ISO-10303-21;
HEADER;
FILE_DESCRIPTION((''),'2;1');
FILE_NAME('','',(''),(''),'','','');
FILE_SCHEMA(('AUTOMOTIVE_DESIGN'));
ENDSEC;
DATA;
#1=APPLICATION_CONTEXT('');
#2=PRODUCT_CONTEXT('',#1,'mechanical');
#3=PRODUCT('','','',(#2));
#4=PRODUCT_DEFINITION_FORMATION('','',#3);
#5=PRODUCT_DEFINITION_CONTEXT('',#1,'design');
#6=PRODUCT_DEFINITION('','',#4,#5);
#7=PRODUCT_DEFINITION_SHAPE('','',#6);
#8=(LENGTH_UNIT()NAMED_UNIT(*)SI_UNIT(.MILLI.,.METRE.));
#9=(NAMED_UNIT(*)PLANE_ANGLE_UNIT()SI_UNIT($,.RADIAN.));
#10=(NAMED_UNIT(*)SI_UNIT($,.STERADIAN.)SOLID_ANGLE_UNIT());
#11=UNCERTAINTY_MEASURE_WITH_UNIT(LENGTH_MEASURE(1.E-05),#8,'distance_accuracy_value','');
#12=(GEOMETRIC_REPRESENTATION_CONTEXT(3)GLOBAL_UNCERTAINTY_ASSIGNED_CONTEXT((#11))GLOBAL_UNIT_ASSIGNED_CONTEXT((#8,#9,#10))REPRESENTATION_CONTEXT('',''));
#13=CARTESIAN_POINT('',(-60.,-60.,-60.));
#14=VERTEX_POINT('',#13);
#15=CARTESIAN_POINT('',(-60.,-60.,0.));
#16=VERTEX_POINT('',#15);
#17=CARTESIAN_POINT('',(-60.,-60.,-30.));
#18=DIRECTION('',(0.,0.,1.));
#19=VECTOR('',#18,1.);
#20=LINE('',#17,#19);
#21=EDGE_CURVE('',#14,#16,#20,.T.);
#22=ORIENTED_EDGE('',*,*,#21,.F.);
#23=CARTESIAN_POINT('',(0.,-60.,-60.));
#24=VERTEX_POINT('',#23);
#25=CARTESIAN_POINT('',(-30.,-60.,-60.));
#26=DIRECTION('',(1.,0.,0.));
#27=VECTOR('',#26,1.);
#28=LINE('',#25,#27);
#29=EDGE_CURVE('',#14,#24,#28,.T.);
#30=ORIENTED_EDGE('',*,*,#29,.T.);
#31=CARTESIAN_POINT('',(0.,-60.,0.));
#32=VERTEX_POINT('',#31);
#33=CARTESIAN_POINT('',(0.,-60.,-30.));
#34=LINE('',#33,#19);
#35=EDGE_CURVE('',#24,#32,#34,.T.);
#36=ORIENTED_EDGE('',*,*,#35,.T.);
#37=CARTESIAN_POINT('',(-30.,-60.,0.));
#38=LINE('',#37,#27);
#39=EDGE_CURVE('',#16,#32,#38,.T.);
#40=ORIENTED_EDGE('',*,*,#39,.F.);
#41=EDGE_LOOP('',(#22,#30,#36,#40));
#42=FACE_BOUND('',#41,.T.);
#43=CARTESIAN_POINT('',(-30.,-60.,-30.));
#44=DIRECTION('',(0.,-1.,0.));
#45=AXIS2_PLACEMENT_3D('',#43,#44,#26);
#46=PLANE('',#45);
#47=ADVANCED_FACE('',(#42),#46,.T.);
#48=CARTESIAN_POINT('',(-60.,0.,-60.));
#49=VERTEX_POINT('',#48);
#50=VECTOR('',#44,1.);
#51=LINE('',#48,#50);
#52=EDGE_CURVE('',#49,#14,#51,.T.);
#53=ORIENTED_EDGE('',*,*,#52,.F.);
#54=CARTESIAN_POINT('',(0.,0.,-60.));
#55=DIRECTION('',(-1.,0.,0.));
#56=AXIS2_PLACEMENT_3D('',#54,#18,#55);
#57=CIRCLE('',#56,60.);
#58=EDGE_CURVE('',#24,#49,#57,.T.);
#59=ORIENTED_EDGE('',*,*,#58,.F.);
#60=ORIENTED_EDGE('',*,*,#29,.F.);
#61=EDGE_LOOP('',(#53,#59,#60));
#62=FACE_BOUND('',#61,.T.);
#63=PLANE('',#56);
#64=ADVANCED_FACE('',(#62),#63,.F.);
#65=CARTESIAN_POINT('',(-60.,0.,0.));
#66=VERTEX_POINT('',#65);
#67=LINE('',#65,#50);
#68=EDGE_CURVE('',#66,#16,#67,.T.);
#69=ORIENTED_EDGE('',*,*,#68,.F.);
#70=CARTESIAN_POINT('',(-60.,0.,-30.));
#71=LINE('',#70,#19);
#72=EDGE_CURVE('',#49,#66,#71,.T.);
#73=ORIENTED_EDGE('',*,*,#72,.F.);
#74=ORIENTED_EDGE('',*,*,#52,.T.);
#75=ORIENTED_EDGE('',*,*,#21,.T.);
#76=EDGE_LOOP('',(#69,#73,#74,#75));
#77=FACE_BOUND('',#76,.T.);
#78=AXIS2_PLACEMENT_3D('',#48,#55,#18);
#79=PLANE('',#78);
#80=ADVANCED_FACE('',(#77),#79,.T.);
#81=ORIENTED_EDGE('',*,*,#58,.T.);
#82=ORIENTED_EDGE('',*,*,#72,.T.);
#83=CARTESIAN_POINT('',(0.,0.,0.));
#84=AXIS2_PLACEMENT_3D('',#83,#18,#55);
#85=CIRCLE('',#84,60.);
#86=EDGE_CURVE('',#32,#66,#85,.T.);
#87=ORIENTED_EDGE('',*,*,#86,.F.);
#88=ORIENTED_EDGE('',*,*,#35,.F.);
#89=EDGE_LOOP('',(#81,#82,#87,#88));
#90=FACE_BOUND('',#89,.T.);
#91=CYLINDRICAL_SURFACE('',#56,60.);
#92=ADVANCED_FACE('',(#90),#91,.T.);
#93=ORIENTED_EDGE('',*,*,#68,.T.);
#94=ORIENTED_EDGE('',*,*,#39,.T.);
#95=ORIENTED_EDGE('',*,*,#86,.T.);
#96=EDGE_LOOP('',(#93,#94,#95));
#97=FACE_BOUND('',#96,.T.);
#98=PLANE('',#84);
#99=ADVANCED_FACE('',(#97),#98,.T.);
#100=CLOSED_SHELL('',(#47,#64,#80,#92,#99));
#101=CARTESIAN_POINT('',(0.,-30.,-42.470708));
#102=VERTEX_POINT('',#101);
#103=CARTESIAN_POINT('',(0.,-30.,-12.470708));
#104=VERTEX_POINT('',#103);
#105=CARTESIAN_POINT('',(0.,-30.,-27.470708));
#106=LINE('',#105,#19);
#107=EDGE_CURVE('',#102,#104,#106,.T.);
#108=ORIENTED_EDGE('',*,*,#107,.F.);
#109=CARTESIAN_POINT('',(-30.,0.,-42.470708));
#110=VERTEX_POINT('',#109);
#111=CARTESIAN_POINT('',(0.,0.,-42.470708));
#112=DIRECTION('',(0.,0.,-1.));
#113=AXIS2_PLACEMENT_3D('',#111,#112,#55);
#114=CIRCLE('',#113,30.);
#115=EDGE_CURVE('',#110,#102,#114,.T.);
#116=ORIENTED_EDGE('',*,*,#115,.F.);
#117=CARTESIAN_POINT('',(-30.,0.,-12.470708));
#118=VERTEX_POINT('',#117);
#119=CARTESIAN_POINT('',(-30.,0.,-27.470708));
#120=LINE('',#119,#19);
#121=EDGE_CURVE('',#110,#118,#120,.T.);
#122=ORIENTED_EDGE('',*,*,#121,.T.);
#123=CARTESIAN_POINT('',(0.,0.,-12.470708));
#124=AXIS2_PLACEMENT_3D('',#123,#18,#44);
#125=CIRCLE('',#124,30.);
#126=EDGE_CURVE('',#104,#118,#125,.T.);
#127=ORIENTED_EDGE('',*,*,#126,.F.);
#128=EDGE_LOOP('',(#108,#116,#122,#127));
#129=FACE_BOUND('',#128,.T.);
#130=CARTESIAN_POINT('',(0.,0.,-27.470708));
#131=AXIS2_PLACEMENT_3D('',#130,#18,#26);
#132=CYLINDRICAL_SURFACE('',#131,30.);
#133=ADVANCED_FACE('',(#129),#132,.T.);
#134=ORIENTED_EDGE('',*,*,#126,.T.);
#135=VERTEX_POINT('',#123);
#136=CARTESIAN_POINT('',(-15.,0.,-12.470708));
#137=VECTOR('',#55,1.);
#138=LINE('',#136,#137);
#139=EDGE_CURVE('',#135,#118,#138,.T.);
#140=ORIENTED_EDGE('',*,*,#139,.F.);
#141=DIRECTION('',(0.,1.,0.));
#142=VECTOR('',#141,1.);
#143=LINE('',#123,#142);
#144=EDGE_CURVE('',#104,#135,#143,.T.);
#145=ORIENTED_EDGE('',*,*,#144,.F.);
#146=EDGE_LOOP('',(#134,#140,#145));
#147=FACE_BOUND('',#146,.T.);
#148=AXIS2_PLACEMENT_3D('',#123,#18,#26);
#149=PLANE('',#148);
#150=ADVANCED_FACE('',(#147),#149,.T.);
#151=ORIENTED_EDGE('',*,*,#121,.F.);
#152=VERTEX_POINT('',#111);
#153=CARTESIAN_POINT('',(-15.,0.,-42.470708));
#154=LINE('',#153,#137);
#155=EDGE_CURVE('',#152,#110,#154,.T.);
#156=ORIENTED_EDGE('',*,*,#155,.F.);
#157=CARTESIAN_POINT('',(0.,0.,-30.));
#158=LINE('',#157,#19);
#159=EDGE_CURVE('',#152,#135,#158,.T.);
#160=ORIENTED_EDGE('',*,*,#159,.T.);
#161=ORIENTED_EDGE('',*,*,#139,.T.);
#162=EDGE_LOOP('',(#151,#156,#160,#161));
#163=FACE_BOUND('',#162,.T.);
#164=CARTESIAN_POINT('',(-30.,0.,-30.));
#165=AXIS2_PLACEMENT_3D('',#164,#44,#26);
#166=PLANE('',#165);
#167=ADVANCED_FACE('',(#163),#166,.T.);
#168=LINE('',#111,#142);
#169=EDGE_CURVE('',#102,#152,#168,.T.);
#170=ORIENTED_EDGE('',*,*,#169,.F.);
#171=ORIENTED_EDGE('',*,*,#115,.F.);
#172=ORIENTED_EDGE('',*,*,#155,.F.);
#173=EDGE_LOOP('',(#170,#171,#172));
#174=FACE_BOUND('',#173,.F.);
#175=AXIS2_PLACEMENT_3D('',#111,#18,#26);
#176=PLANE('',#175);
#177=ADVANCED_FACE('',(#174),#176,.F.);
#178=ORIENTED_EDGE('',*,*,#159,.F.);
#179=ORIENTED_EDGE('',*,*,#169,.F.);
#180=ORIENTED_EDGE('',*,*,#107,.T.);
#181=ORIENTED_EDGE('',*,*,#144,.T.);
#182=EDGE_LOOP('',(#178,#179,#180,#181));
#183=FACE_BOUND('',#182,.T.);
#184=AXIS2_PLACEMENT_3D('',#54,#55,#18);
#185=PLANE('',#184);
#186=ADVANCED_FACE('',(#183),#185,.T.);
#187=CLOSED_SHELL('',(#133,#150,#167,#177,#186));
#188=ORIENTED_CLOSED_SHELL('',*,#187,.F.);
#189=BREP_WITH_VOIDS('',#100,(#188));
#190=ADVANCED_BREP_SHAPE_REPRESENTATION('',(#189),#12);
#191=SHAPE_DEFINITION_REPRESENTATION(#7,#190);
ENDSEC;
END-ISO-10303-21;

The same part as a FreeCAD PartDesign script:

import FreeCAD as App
import Part
import Sketcher


def add_polygon(sketch, points):
    """Adds a closed chain of lines whose ends are joined by coincident constraints."""
    first, n = sketch.GeometryCount, len(points)
    for a, b in zip(points, points[1:] + points[:1]):
        sketch.addGeometry(Part.LineSegment(App.Vector(*a, 0), App.Vector(*b, 0)), False)
    for i in range(n):
        sketch.addConstraint(Sketcher.Constraint("Coincident", first + i, 2, first + (i + 1) % n, 1))

doc = App.newDocument("Part")
body = doc.addObject("PartDesign::Body", "Body")

# Sketch on XZ plane
sketch1 = doc.addObject("Sketcher::SketchObject", "Sketch")
body.addObject(sketch1)
sketch1.AttachmentSupport = (doc.XZ_Plane, [""])
sketch1.MapMode = "FlatFace"
add_polygon(sketch1, [(-60, 0), (-60, -60), (0, -60), (0, 0)])  # lines 0-3
sketch1.addConstraint([
    Sketcher.Constraint("Vertical", 0),
    Sketcher.Constraint("Horizontal", 1),
    Sketcher.Constraint("Vertical", 2),
    Sketcher.Constraint("Horizontal", 3),
    Sketcher.Constraint("Coincident", 2, 2, -1, 1),
    Sketcher.Constraint("Equal", 3, 0),
    Sketcher.Constraint("DistanceX", 1, 1, 1, 2, 60.0),
])
pad1 = doc.addObject("PartDesign::Pad", "Pad")
body.addObject(pad1)
pad1.Profile = sketch1
pad1.Length = 60

# Sketch on XZ plane
sketch2 = doc.addObject("Sketcher::SketchObject", "Sketch001")
body.addObject(sketch2)
sketch2.AttachmentSupport = (doc.XZ_Plane, [""])
sketch2.MapMode = "FlatFace"
add_polygon(sketch2, [(30, -12), (30, -42), (0, -42), (0, -60), (-60, -60), (-60, 0), (0, 0), (0, -12)])  # lines 0-7
sketch2.addConstraint([
    Sketcher.Constraint("Vertical", 0),
    Sketcher.Constraint("Horizontal", 1),
    Sketcher.Constraint("Vertical", 2),
    Sketcher.Constraint("Horizontal", 3),
    Sketcher.Constraint("Vertical", 4),
    Sketcher.Constraint("Horizontal", 5),
    Sketcher.Constraint("Vertical", 6),
    Sketcher.Constraint("Horizontal", 7),
    Sketcher.Constraint("Coincident", 5, 2, -1, 1),
    Sketcher.Constraint("PointOnObject", 1, 2, -2),
    Sketcher.Constraint("Equal", 7, 0),
    Sketcher.Constraint("Equal", 5, 4),
    Sketcher.Constraint("DistanceX", 1, 2, 1, 1, 30.0),
    Sketcher.Constraint("DistanceX", 3, 2, 3, 1, 60.0),
    Sketcher.Constraint("DistanceY", 2, 2, 2, 1, 17.529292),
])
revolution = doc.addObject("PartDesign::Revolution", "Revolution")
body.addObject(revolution)
revolution.Profile = sketch2
revolution.ReferenceAxis = (sketch2, ["V_Axis"])
revolution.Angle = 360

doc.recompute()
